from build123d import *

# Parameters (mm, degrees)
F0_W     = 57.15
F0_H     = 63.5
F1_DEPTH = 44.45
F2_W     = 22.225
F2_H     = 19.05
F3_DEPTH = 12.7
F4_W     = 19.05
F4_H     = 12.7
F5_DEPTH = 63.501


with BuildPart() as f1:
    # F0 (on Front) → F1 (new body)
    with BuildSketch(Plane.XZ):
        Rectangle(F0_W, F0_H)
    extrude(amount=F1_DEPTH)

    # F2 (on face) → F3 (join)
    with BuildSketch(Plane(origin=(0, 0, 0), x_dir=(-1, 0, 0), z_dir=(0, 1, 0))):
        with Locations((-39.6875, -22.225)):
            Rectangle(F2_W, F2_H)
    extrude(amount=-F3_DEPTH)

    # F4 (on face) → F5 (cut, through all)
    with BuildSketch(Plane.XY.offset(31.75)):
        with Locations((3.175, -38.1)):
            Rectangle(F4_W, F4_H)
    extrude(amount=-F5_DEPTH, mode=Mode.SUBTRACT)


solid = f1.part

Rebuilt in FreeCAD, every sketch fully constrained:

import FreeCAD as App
import Part
import Sketcher
from FreeCAD import Vector
Q = App.Units.Quantity


def add_polygon(sketch, points):
    """Adds a closed chain of lines whose ends are joined by coincident constraints."""
    first, n = sketch.GeometryCount, len(points)
    for a, b in zip(points, points[1:] + points[:1]):
        sketch.addGeometry(Part.LineSegment(App.Vector(*a, 0), App.Vector(*b, 0)), False)
    for i in range(n):
        sketch.addConstraint(Sketcher.Constraint("Coincident", first + i, 2, first + (i + 1) % n, 1))

doc = App.newDocument("Part")
body = doc.addObject("PartDesign::Body", "Body")

# Sketch on XZ plane
sketch1 = body.newObject("Sketcher::SketchObject", "Sketch")
sketch1.AttachmentSupport = (doc.getObject("XZ_Plane"), [""])
sketch1.MapMode = "FlatFace"
add_polygon(sketch1, [(-29, 32), (-29, -32), (29, -32), (29, 32)])  # lines 0-3
sketch1.addConstraint([
    Sketcher.Constraint("Vertical", 0),
    Sketcher.Constraint("Horizontal", 1),
    Sketcher.Constraint("Vertical", 2),
    Sketcher.Constraint("Horizontal", 3),
    Sketcher.Constraint("Symmetric", 0, 2, 2, 2, -1, 1),
    Sketcher.Constraint("DistanceY", 0, 2, 0, 1, Q("2.5 in")),
    Sketcher.Constraint("DistanceX", 1, 1, 1, 2, Q("2.25 in")),
])
pad1 = body.newObject("PartDesign::Pad", "Pad")
pad1.Profile = sketch1
pad1.Length = Q("1.75 in")

# Sketch on XZ plane
sketch2 = body.newObject("Sketcher::SketchObject", "Sketch001")
sketch2.AttachmentSupport = (doc.getObject("XZ_Plane"), [""])
sketch2.MapMode = "FlatFace"
add_polygon(sketch2, [(51, -13), (51, -32), (29, -32), (29, -13)])  # lines 0-3
sketch2.addConstraint([
    Sketcher.Constraint("Vertical", 0),
    Sketcher.Constraint("Horizontal", 1),
    Sketcher.Constraint("Vertical", 2),
    Sketcher.Constraint("Horizontal", 3),
    Sketcher.Constraint("DistanceX", -1, 1, 0, 2, Q("2 in")),
    Sketcher.Constraint("DistanceY", 0, 2, 0, 1, Q("0.75 in")),
    Sketcher.Constraint("DistanceY", 2, 2, -1, 1, Q("0.5 in")),
    Sketcher.Constraint("DistanceX", 1, 2, 1, 1, Q("0.875 in")),
])
pad2 = body.newObject("PartDesign::Pad", "Pad001")
pad2.Profile = sketch2
pad2.Length = Q("0.5 in")

# Sketch on XY plane
sketch3 = body.newObject("Sketcher::SketchObject", "Sketch002")
sketch3.AttachmentSupport = (doc.getObject("XY_Plane"), [""])
sketch3.MapMode = "FlatFace"
sketch3.AttachmentOffset = App.Placement(Vector(0, 0, 1.25 * 25.4), App.Rotation())
add_polygon(sketch3, [(-6, -32), (-6, -44), (13, -44), (13, -32)])  # lines 0-3
sketch3.addConstraint([
    Sketcher.Constraint("Vertical", 0),
    Sketcher.Constraint("Horizontal", 1),
    Sketcher.Constraint("Vertical", 2),
    Sketcher.Constraint("Horizontal", 3),
    Sketcher.Constraint("DistanceY", 0, 2, 0, 1, Q("0.5 in")),
    Sketcher.Constraint("DistanceX", 1, 1, 1, 2, Q("0.75 in")),
    Sketcher.Constraint("DistanceX", -1, 1, 1, 2, Q("0.5 in")),
    Sketcher.Constraint("DistanceY", 0, 2, -1, 1, Q("1.75 in")),
])
pocket1 = body.newObject("PartDesign::Pocket", "Pocket")
pocket1.Profile = sketch3
pocket1.Type = "ThroughAll"

doc.recompute()
